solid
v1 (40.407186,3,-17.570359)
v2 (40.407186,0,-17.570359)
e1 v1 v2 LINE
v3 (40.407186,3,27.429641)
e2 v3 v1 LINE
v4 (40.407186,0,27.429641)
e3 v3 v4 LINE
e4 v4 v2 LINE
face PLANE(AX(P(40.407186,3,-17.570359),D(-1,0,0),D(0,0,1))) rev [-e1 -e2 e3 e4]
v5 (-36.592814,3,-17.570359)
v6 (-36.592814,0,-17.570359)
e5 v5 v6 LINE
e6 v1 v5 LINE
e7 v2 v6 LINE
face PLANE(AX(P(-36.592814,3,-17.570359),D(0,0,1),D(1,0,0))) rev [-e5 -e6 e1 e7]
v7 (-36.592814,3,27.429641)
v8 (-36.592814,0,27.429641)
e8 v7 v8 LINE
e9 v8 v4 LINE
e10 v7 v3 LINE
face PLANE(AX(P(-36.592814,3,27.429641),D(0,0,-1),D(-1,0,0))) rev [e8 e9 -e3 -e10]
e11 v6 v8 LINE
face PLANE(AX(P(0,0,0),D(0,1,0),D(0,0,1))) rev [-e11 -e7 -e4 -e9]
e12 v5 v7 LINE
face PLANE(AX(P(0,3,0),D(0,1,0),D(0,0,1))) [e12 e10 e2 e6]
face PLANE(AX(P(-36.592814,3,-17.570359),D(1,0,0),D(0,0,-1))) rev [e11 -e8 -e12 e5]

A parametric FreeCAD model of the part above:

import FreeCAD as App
import Part
import Sketcher


def add_polygon(sketch, points):
    """Adds a closed chain of lines whose ends are joined by coincident constraints."""
    first, n = sketch.GeometryCount, len(points)
    for a, b in zip(points, points[1:] + points[:1]):
        sketch.addGeometry(Part.LineSegment(App.Vector(*a, 0), App.Vector(*b, 0)), False)
    for i in range(n):
        sketch.addConstraint(Sketcher.Constraint("Coincident", first + i, 2, first + (i + 1) % n, 1))

doc = App.newDocument("Part")
body = doc.addObject("PartDesign::Body", "Body")

sketch1 = body.newObject("Sketcher::SketchObject", "Sketch")
sketch1.AttachmentSupport = (doc.getObject("XZ_Plane"), [""])
sketch1.MapMode = "FlatFace"
add_polygon(sketch1, [(-36.592814, -17.570359), (-36.592814, 27.429641), (40.407186, 27.429641), (40.407186, -17.570359)])
sketch1.addConstraint(Sketcher.Constraint("Vertical", 0))
sketch1.addConstraint(Sketcher.Constraint("Horizontal", 1))
sketch1.addConstraint(Sketcher.Constraint("Vertical", 2))
sketch1.addConstraint(Sketcher.Constraint("Horizontal", 3))
sketch1.addConstraint(Sketcher.Constraint("DistanceX", 1, 1, 1, 2, 77.0))
sketch1.addConstraint(Sketcher.Constraint("DistanceY", 0, 1, 0, 2, 45.0))
sketch1.addConstraint(Sketcher.Constraint("DistanceY", -1, 1, 0, 2, 27.429641))
sketch1.addConstraint(Sketcher.Constraint("DistanceX", 0, 2, -1, 1, 36.592814))
pad1 = body.newObject("PartDesign::Pad", "Pad")
pad1.Profile = sketch1
pad1.Length = 3
pad1.Reversed = True

doc.recompute()
